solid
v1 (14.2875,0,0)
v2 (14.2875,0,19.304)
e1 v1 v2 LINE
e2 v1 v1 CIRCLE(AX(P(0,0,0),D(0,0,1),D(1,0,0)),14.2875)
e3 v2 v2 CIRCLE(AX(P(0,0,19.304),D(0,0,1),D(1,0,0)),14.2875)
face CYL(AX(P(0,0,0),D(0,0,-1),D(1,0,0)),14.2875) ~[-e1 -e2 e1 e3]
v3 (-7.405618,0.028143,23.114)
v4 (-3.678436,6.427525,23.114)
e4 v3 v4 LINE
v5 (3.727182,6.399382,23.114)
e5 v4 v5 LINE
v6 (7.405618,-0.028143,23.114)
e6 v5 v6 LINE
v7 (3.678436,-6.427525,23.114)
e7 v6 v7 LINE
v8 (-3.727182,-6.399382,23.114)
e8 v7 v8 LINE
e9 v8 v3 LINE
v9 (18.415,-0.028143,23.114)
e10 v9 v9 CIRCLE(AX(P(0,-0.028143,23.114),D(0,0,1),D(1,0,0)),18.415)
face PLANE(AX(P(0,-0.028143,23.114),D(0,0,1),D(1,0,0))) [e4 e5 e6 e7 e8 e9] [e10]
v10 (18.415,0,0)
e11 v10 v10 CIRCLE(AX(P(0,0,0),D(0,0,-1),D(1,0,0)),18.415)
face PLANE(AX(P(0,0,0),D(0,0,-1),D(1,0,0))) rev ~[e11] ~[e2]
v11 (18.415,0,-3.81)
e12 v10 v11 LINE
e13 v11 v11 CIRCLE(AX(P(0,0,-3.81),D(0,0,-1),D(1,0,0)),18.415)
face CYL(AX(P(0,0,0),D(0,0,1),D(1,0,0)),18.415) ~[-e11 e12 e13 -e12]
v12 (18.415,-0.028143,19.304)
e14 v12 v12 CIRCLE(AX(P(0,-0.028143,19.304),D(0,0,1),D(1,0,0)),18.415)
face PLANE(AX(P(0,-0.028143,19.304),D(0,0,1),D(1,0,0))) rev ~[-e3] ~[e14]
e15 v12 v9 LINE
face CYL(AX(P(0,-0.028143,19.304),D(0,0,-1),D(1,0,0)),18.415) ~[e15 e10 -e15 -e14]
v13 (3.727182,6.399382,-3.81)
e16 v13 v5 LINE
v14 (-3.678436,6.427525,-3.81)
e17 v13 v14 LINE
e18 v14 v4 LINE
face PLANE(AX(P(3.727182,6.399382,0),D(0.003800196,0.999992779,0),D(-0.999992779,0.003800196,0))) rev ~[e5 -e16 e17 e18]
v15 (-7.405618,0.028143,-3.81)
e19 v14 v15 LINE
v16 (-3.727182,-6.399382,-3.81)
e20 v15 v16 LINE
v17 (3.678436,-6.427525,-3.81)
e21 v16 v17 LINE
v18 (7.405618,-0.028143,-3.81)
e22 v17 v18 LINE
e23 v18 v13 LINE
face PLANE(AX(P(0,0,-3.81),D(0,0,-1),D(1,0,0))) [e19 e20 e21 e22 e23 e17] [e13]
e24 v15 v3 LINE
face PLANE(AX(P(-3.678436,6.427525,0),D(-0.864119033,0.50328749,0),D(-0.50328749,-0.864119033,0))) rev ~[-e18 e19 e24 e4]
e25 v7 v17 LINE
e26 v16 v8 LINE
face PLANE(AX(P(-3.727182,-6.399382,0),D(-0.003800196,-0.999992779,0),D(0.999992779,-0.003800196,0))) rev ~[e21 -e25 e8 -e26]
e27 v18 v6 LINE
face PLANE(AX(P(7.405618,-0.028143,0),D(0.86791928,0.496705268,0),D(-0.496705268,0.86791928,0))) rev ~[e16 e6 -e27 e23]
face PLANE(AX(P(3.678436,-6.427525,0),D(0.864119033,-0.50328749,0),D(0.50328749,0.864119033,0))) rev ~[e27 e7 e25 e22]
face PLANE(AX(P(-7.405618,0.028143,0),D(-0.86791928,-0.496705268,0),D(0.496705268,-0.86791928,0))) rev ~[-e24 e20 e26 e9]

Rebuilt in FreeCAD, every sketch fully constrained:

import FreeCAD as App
import Part
import Sketcher
from FreeCAD import Vector
Q = App.Units.Quantity


def add_polygon(sketch, points):
    """Adds a closed chain of lines whose ends are joined by coincident constraints."""
    first, n = sketch.GeometryCount, len(points)
    for a, b in zip(points, points[1:] + points[:1]):
        sketch.addGeometry(Part.LineSegment(App.Vector(*a, 0), App.Vector(*b, 0)), False)
    for i in range(n):
        sketch.addConstraint(Sketcher.Constraint("Coincident", first + i, 2, first + (i + 1) % n, 1))

doc = App.newDocument("Part")
body = doc.addObject("PartDesign::Body", "Body")

sketch1 = doc.addObject("Sketcher::SketchObject", "Sketch")
body.addObject(sketch1)
sketch1.AttachmentSupport = (doc.XY_Plane, [""])
sketch1.MapMode = "FlatFace"
sketch1.addGeometry(Part.Circle(Vector(0, 0, 0), Vector(0, 0, 1), 14), False)
add_polygon(sketch1, [(-7, 0), (-4, 6), (4, 6), (7, 0), (4, -6), (-4, -6)])
sketch1.addConstraint(Sketcher.Constraint("Coincident", 0, 3, -1, 1))
sketch1.addConstraint(Sketcher.Constraint("Symmetric", 1, 2, 4, 2, -1, 1))
sketch1.addConstraint(Sketcher.Constraint("Symmetric", 2, 2, 5, 2, -1, 1))
sketch1.addConstraint(Sketcher.Constraint("Symmetric", 3, 2, 6, 2, -1, 1))
sketch1.addConstraint(Sketcher.Constraint("Equal", 1, 2))
sketch1.addConstraint(Sketcher.Constraint("Equal", 2, 3))
sketch1.addConstraint(Sketcher.Constraint("Diameter", 0, Q("1.125 in")))
sketch1.addConstraint(Sketcher.Constraint("DistanceX", 5, 2, 3, 2, Q("11.1328 mm")))
sketch1.addConstraint(Sketcher.Constraint("Distance", 1, Q("7.405672 mm")))
sketch1.addConstraint(Sketcher.Constraint("DistanceX", -1, 1, 2, 2, Q("3.727182 mm")))
sketch1.addConstraint(Sketcher.Constraint("DistanceY", 3, 2, 1, 2, Q("6.455668 mm")))
pad1 = doc.addObject("PartDesign::Pad", "Pad")
body.addObject(pad1)
pad1.Profile = sketch1
pad1.Length = Q("0.76 in")

sketch2 = doc.addObject("Sketcher::SketchObject", "Sketch001")
body.addObject(sketch2)
sketch2.AttachmentSupport = (doc.XY_Plane, [""])
sketch2.MapMode = "FlatFace"
sketch2.AttachmentOffset = App.Placement(Vector(0, 0, 0.76 * 25.4), App.Rotation())
sketch2.addGeometry(Part.Circle(Vector(0, 0, 0), Vector(0, 0, 1), 18), False)
add_polygon(sketch2, [(-7, 0), (-4, 6), (4, 6), (7, 0), (4, -6), (-4, -6)])
sketch2.addConstraint(Sketcher.Constraint("Symmetric", 1, 2, 4, 2, -1, 1))
sketch2.addConstraint(Sketcher.Constraint("Symmetric", 2, 2, 5, 2, -1, 1))
sketch2.addConstraint(Sketcher.Constraint("Symmetric", 3, 2, 6, 2, -1, 1))
sketch2.addConstraint(Sketcher.Constraint("PointOnObject", 0, 3, -2))
sketch2.addConstraint(Sketcher.Constraint("Horizontal", 0, 3, 3, 2))
sketch2.addConstraint(Sketcher.Constraint("Equal", 1, 2))
sketch2.addConstraint(Sketcher.Constraint("Equal", 2, 3))
sketch2.addConstraint(Sketcher.Constraint("Diameter", 0, Q("1.45 in")))
sketch2.addConstraint(Sketcher.Constraint("DistanceX", 5, 2, 3, 2, Q("11.1328 mm")))
sketch2.addConstraint(Sketcher.Constraint("Distance", 1, Q("7.405672 mm")))
sketch2.addConstraint(Sketcher.Constraint("DistanceX", -1, 1, 2, 2, Q("3.727182 mm")))
sketch2.addConstraint(Sketcher.Constraint("DistanceY", 0, 3, 1, 2, Q("6.455668 mm")))
pad2 = doc.addObject("PartDesign::Pad", "Pad001")
body.addObject(pad2)
pad2.Profile = sketch2
pad2.Length = Q("0.15 in")

sketch3 = doc.addObject("Sketcher::SketchObject", "Sketch002")
body.addObject(sketch3)
sketch3.AttachmentSupport = (doc.XY_Plane, [""])
sketch3.MapMode = "FlatFace"
sketch3.addGeometry(Part.Circle(Vector(0, 0, 0), Vector(0, 0, 1), 18), False)
add_polygon(sketch3, [(-4, -6), (4, -6), (7, 0), (4, 6), (-4, 6), (-7, 0)])
sketch3.addConstraint(Sketcher.Constraint("Coincident", 0, 3, -1, 1))
sketch3.addConstraint(Sketcher.Constraint("Symmetric", 1, 2, 4, 2, -1, 1))
sketch3.addConstraint(Sketcher.Constraint("Symmetric", 2, 2, 5, 2, -1, 1))
sketch3.addConstraint(Sketcher.Constraint("Symmetric", 3, 2, 6, 2, -1, 1))
sketch3.addConstraint(Sketcher.Constraint("Equal", 1, 2))
sketch3.addConstraint(Sketcher.Constraint("Equal", 2, 3))
sketch3.addConstraint(Sketcher.Constraint("Diameter", 0, Q("1.45 in")))
sketch3.addConstraint(Sketcher.Constraint("DistanceX", 5, 2, 3, 2, Q("11.1328 mm")))
sketch3.addConstraint(Sketcher.Constraint("Distance", 1, Q("7.405671 mm")))
sketch3.addConstraint(Sketcher.Constraint("DistanceX", -1, 1, 3, 2, Q("3.727182 mm")))
sketch3.addConstraint(Sketcher.Constraint("DistanceY", 2, 2, 4, 2, Q("6.455668 mm")))
pad3 = doc.addObject("PartDesign::Pad", "Pad002")
body.addObject(pad3)
pad3.Profile = sketch3
pad3.Length = Q("0.15 in")
pad3.Reversed = True

doc.recompute()
